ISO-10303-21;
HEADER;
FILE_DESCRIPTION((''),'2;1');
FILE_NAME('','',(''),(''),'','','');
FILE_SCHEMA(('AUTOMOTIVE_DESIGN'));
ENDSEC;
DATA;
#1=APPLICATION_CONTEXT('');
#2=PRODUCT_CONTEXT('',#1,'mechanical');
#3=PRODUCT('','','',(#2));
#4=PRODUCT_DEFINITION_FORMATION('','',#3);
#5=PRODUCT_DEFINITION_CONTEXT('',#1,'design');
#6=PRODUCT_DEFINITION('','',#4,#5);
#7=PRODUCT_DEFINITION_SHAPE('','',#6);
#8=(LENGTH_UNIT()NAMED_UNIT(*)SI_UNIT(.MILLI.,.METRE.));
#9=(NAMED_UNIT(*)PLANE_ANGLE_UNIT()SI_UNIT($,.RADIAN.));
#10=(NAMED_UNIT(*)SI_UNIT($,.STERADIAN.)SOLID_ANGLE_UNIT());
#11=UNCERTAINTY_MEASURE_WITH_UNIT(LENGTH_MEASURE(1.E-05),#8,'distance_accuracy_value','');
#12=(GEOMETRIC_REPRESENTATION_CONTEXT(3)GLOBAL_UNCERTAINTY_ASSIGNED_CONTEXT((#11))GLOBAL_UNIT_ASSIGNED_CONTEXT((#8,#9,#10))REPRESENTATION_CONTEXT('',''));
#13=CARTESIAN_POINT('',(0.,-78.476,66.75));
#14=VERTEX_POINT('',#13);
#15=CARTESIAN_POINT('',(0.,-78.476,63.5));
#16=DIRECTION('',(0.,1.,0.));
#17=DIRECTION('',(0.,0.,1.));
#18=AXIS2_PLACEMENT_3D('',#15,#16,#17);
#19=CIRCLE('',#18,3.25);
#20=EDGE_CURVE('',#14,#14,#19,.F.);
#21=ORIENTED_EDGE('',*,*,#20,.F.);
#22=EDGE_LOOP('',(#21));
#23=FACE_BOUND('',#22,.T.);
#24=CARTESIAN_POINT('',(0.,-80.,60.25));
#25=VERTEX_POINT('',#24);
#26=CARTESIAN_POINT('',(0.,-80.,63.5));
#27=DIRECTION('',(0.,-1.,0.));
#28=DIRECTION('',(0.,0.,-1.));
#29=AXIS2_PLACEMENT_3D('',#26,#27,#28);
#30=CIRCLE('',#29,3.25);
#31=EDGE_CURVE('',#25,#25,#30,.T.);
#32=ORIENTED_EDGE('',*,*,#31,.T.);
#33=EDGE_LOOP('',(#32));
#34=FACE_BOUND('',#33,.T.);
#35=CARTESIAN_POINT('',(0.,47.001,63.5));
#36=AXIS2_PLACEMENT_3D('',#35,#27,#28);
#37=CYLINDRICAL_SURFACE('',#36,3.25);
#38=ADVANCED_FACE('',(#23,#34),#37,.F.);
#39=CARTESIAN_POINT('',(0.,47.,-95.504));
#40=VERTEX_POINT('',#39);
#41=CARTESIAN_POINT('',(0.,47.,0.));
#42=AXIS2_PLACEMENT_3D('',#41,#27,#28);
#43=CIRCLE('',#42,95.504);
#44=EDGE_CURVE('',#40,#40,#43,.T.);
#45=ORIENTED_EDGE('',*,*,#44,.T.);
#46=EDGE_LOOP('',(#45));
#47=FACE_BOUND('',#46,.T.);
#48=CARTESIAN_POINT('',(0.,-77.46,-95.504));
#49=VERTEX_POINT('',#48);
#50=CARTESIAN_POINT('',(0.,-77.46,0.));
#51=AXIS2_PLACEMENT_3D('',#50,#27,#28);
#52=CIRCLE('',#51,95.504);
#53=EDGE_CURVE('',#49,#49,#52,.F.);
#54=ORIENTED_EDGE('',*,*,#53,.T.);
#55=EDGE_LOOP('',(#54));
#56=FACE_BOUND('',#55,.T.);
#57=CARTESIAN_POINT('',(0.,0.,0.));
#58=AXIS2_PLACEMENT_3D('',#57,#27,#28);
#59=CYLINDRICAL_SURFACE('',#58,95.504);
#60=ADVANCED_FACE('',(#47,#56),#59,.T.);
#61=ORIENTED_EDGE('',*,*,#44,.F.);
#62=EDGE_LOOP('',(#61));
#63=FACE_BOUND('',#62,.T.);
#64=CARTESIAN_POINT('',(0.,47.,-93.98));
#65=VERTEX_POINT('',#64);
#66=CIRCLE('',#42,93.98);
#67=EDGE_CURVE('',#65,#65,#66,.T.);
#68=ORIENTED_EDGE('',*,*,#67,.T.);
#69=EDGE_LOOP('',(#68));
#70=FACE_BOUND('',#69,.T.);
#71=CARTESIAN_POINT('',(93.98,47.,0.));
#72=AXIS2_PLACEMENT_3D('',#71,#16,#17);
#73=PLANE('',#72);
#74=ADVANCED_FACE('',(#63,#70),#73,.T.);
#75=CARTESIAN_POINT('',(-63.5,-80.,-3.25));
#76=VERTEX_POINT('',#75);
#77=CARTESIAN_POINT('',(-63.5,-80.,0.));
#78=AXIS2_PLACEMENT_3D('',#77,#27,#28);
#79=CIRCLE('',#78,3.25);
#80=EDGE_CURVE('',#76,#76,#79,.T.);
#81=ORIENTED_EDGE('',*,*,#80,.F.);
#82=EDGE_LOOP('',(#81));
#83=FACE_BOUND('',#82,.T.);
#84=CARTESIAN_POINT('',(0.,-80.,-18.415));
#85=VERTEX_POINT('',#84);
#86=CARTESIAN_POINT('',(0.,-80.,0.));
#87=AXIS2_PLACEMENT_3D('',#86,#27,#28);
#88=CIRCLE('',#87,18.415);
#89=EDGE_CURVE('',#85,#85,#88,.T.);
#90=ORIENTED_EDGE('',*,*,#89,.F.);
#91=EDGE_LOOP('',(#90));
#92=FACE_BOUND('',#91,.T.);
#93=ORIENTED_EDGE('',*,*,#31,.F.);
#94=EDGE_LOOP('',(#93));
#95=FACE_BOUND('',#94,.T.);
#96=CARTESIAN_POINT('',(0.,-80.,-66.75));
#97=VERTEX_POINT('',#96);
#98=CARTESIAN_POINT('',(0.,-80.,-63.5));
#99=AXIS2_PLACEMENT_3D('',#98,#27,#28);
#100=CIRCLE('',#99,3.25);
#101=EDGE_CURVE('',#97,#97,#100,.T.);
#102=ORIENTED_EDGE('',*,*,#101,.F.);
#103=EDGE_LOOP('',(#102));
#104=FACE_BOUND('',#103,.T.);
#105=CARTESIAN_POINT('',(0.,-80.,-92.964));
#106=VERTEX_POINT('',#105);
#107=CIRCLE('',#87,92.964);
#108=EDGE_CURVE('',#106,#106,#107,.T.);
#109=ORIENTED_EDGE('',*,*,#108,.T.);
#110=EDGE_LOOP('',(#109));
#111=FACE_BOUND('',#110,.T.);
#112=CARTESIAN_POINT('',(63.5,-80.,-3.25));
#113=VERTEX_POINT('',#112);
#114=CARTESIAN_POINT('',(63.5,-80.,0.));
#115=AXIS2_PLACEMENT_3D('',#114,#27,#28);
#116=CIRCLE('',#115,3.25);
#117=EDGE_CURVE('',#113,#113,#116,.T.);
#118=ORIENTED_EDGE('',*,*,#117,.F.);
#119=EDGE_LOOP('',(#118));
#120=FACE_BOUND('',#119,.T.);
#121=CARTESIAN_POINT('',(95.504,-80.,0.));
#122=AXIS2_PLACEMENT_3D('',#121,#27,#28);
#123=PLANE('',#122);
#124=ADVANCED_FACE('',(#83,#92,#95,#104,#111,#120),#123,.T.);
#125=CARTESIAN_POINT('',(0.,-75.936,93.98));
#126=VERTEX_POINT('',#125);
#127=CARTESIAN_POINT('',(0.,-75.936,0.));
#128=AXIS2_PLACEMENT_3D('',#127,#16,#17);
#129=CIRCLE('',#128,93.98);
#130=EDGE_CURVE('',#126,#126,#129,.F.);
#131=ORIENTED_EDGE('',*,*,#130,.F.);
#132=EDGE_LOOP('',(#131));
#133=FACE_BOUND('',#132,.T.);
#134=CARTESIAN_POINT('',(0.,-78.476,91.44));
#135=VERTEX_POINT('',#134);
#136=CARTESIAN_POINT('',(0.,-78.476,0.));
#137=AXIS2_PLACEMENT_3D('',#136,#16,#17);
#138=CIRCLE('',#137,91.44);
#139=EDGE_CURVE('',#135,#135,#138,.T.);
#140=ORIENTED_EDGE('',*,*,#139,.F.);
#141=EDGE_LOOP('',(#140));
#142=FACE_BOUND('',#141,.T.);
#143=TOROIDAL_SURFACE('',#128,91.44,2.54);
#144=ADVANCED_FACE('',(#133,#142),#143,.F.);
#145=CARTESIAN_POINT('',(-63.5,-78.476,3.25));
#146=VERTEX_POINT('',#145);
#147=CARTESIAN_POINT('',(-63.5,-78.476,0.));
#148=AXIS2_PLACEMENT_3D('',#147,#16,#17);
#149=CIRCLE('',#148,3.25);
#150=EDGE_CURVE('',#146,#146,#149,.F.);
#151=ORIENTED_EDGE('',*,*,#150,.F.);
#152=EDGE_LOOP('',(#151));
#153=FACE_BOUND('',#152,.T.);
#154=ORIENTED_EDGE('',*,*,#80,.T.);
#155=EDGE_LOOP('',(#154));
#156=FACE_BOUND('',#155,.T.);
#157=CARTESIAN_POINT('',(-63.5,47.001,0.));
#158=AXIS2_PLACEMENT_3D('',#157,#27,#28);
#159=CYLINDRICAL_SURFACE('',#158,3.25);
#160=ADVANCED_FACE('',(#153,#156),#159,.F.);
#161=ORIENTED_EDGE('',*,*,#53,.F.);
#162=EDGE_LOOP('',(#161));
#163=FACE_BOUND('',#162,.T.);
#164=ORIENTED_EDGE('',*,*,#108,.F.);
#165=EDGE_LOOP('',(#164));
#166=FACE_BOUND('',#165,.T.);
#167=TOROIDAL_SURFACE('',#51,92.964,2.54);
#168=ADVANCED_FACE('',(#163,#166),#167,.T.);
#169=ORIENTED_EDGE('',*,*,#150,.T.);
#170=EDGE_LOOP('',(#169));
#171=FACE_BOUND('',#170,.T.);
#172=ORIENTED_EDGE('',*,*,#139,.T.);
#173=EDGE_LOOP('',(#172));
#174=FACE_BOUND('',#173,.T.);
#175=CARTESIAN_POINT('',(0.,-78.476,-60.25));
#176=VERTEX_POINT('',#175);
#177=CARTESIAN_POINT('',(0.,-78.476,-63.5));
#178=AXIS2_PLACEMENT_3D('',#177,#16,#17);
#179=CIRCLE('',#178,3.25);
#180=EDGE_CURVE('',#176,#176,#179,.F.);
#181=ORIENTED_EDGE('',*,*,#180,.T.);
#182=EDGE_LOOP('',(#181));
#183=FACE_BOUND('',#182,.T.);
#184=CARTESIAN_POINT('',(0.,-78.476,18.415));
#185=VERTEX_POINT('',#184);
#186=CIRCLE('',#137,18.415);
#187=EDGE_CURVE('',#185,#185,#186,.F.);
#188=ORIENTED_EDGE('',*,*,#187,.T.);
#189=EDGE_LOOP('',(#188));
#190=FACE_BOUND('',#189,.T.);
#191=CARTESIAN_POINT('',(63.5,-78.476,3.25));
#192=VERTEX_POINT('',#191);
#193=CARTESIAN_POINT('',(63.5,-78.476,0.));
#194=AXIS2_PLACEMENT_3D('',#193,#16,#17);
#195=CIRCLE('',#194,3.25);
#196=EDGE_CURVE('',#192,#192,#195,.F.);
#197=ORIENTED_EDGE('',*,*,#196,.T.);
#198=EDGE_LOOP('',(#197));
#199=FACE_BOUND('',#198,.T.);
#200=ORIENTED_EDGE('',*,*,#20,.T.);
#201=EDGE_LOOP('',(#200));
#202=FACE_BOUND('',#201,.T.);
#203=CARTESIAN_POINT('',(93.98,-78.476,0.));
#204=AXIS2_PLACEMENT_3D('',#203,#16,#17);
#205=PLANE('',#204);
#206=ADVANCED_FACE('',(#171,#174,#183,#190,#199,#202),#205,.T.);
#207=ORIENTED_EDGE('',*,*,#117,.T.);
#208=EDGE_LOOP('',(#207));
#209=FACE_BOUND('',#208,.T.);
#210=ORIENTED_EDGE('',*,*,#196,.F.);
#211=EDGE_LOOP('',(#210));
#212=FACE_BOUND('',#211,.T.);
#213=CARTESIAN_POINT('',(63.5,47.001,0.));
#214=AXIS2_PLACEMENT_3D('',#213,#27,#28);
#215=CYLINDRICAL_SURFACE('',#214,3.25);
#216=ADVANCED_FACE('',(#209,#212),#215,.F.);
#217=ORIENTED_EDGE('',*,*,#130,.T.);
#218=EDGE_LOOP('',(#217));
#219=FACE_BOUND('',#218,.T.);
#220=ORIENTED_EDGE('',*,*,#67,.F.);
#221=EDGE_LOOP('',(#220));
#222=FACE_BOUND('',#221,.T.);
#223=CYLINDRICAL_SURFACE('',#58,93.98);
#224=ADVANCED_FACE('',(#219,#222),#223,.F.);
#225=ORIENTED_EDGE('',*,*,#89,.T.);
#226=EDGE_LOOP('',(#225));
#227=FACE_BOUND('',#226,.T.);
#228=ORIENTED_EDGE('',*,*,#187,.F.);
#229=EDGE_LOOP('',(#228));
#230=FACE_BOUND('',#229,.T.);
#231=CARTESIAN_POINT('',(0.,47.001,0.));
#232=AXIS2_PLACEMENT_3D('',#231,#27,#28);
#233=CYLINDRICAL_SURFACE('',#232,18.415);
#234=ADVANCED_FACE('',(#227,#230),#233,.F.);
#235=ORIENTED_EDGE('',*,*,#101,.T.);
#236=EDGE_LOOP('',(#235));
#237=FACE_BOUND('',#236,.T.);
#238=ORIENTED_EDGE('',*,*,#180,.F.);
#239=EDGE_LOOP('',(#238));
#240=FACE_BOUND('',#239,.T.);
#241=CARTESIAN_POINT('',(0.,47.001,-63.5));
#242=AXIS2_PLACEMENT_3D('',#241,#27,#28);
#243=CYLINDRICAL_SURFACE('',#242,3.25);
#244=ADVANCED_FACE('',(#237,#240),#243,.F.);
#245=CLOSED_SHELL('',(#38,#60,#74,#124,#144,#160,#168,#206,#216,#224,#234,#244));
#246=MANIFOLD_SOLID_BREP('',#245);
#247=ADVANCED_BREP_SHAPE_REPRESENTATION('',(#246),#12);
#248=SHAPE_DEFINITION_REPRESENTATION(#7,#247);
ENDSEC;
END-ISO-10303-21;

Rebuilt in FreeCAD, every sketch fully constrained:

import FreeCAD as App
import Part
import Sketcher

V = App.Vector
Q = App.Units.Quantity


def edges_at(feature, points):
    """Names of the edges that pass closest to the given points."""
    edges = feature.Shape.Edges
    near = lambda p: min(range(len(edges)), key=lambda i: edges[i].distToShape(Part.Vertex(*p))[0])
    return sorted({f"Edge{near(p) + 1}" for p in points})

doc = App.newDocument("Part")
body = doc.addObject("PartDesign::Body", "Body")

# Sketch on XY plane
sketch1 = doc.addObject("Sketcher::SketchObject", "Sketch")
body.addObject(sketch1)
sketch1.AttachmentSupport = (doc.XY_Plane, [""])
sketch1.MapMode = "FlatFace"
sketch1.addGeometry(Part.LineSegment(V(0, -80, 0), V(95.504, -80, 0)), False)
sketch1.addGeometry(Part.LineSegment(V(95.504, -80, 0), V(95.504, 47, 0)), False)
sketch1.addGeometry(Part.LineSegment(V(95.504, 47, 0), V(93.98, 47, 0)), False)
sketch1.addGeometry(Part.LineSegment(V(93.98, 47, 0), V(93.98, -78.476, 0)), False)
sketch1.addGeometry(Part.LineSegment(V(93.98, -78.476, 0), V(0, -78.476, 0)), False)
sketch1.addGeometry(Part.LineSegment(V(0, -78.476, 0), V(0, -80, 0)), False)
sketch1.addConstraint(Sketcher.Constraint("Coincident", 0, 2, 1, 1))
sketch1.addConstraint(Sketcher.Constraint("Coincident", 1, 2, 2, 1))
sketch1.addConstraint(Sketcher.Constraint("Coincident", 2, 2, 3, 1))
sketch1.addConstraint(Sketcher.Constraint("Coincident", 3, 2, 4, 1))
sketch1.addConstraint(Sketcher.Constraint("Coincident", 4, 2, 5, 1))
sketch1.addConstraint(Sketcher.Constraint("Coincident", 5, 2, 0, 1))
sketch1.addConstraint(Sketcher.Constraint("Horizontal", 0))
sketch1.addConstraint(Sketcher.Constraint("Vertical", 1))
sketch1.addConstraint(Sketcher.Constraint("Horizontal", 2))
sketch1.addConstraint(Sketcher.Constraint("Vertical", 3))
sketch1.addConstraint(Sketcher.Constraint("Horizontal", 4))
sketch1.addConstraint(Sketcher.Constraint("Vertical", 5))
sketch1.addConstraint(Sketcher.Constraint("PointOnObject", 4, 2, -2))
sketch1.addConstraint(Sketcher.Constraint("Equal", 2, 5))
sketch1.addConstraint(Sketcher.Constraint("DistanceY", 1, 1, 1, 2, Q("5 in")))
sketch1.addConstraint(Sketcher.Constraint("DistanceX", 4, 2, 4, 1, Q("3.7 in")))
sketch1.addConstraint(Sketcher.Constraint("DistanceX", 0, 1, 0, 2, Q("3.76 in")))
sketch1.addConstraint(Sketcher.Constraint("DistanceY", 0, 2, -1, 1, Q("80 mm")))
revolution = doc.addObject("PartDesign::Revolution", "Revolution")
body.addObject(revolution)
revolution.Profile = sketch1
revolution.ReferenceAxis = (sketch1, ["V_Axis"])
revolution.Angle = 360

# Sketch on XZ plane
sketch2 = doc.addObject("Sketcher::SketchObject", "Sketch001")
body.addObject(sketch2)
sketch2.AttachmentSupport = (doc.XZ_Plane, [""])
sketch2.MapMode = "FlatFace"
sketch2.AttachmentOffset = App.Placement(V(0, 0, 80), App.Rotation())
sketch2.addGeometry(Part.Circle(V(0, 0, 0), V(0, 0, 1), 18.415), False)
sketch2.addConstraint(Sketcher.Constraint("Coincident", 0, 3, -1, 1))
sketch2.addConstraint(Sketcher.Constraint("Diameter", 0, Q("1.45 in")))
pocket1 = doc.addObject("PartDesign::Pocket", "Pocket")
body.addObject(pocket1)
pocket1.Profile = sketch2
pocket1.Type = "UpToFirst"

# Sketch on XZ plane
sketch3 = doc.addObject("Sketcher::SketchObject", "Sketch002")
body.addObject(sketch3)
sketch3.AttachmentSupport = (doc.XZ_Plane, [""])
sketch3.MapMode = "FlatFace"
sketch3.AttachmentOffset = App.Placement(V(0, 0, 80), App.Rotation())
sketch3.addGeometry(Part.Circle(V(0, 63.5, 0), V(0, 0, 1), 3.25), False)
sketch3.addConstraint(Sketcher.Constraint("PointOnObject", 0, 3, -2))
sketch3.addConstraint(Sketcher.Constraint("DistanceY", -1, 1, 0, 3, Q("2.5 in")))
sketch3.addConstraint(Sketcher.Constraint("Diameter", 0, Q("6.5 mm")))
pocket2 = doc.addObject("PartDesign::Pocket", "Pocket001")
body.addObject(pocket2)
pocket2.Profile = sketch3
pocket2.Type = "UpToFirst"

# Sketch on XZ plane
sketch4 = doc.addObject("Sketcher::SketchObject", "Sketch003")
body.addObject(sketch4)
sketch4.AttachmentSupport = (doc.XZ_Plane, [""])
sketch4.MapMode = "FlatFace"
sketch4.AttachmentOffset = App.Placement(V(0, 0, 80), App.Rotation())
sketch4.addGeometry(Part.Circle(V(63.5, 0, 0), V(0, 0, 1), 3.25), False)
sketch4.addConstraint(Sketcher.Constraint("PointOnObject", 0, 3, -1))
sketch4.addConstraint(Sketcher.Constraint("DistanceX", -1, 1, 0, 3, Q("2.5 in")))
sketch4.addConstraint(Sketcher.Constraint("Diameter", 0, Q("6.5 mm")))
pocket3 = doc.addObject("PartDesign::Pocket", "Pocket002")
body.addObject(pocket3)
pocket3.Profile = sketch4
pocket3.Type = "UpToFirst"

# Sketch on XZ plane
sketch5 = doc.addObject("Sketcher::SketchObject", "Sketch004")
body.addObject(sketch5)
sketch5.AttachmentSupport = (doc.XZ_Plane, [""])
sketch5.MapMode = "FlatFace"
sketch5.AttachmentOffset = App.Placement(V(0, 0, 80), App.Rotation())
sketch5.addGeometry(Part.Circle(V(0, -63.5, 0), V(0, 0, 1), 3.25), False)
sketch5.addConstraint(Sketcher.Constraint("PointOnObject", 0, 3, -2))
sketch5.addConstraint(Sketcher.Constraint("DistanceY", 0, 3, -1, 1, Q("2.5 in")))
sketch5.addConstraint(Sketcher.Constraint("Diameter", 0, Q("6.5 mm")))
pocket4 = doc.addObject("PartDesign::Pocket", "Pocket003")
body.addObject(pocket4)
pocket4.Profile = sketch5
pocket4.Type = "UpToFirst"

# Sketch on XZ plane
sketch6 = doc.addObject("Sketcher::SketchObject", "Sketch005")
body.addObject(sketch6)
sketch6.AttachmentSupport = (doc.XZ_Plane, [""])
sketch6.MapMode = "FlatFace"
sketch6.AttachmentOffset = App.Placement(V(0, 0, 80), App.Rotation())
sketch6.addGeometry(Part.Circle(V(-63.5, 0, 0), V(0, 0, 1), 3.25), False)
sketch6.addConstraint(Sketcher.Constraint("PointOnObject", 0, 3, -1))
sketch6.addConstraint(Sketcher.Constraint("DistanceX", 0, 3, -1, 1, Q("2.5 in")))
sketch6.addConstraint(Sketcher.Constraint("Diameter", 0, Q("6.5 mm")))
pocket5 = doc.addObject("PartDesign::Pocket", "Pocket004")
body.addObject(pocket5)
pocket5.Profile = sketch6
pocket5.Type = "UpToFirst"
doc.recompute()

fillet = doc.addObject("PartDesign::Fillet", "Fillet")
body.addObject(fillet)
fillet.Base = (pocket5, edges_at(pocket5, [(0, -78.476, 93.98), (0, -80, 95.504)]))
fillet.Radius = Q("0.1 in")

doc.recompute()
